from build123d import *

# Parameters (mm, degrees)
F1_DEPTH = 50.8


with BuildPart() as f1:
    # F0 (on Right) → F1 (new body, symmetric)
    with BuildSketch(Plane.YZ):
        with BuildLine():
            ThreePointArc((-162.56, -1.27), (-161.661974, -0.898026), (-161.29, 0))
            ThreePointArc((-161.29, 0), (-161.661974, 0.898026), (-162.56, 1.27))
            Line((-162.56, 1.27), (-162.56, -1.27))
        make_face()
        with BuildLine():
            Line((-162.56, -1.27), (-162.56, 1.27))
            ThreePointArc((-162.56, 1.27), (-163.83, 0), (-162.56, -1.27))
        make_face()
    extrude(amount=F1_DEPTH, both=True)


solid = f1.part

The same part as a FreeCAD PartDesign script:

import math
import FreeCAD as App
import Part
import Sketcher
from FreeCAD import Vector
Q = App.Units.Quantity

doc = App.newDocument("Part")
params = doc.addObject("Spreadsheet::Sheet", "Params")
for row, (alias, value) in enumerate([
    ("sketch1_radius", "0.0499999 in"),
    ("pad1_length", "4 in"),
], start=1):
    params.set(f"A{row}", alias)
    params.set(f"B{row}", "=" + value)
    params.setAlias(f"B{row}", alias)

body = doc.addObject("PartDesign::Body", "Body")

# Sketch on YZ plane
sketch1 = body.newObject("Sketcher::SketchObject", "Sketch")
sketch1.AttachmentSupport = (doc.getObject("YZ_Plane"), [""])
sketch1.MapMode = "FlatFace"
sketch1.addGeometry(Part.ArcOfCircle(Part.Circle(Vector(-162.6, 0, 0), Vector(0, 0, 1), 1.3), math.radians(-90), math.radians(0)), False)
sketch1.addGeometry(Part.ArcOfCircle(Part.Circle(Vector(-162.6, 0, 0), Vector(0, 0, 1), 1.3), math.radians(0), math.radians(90)), False)
sketch1.addGeometry(Part.ArcOfCircle(Part.Circle(Vector(-162.6, 0, 0), Vector(0, 0, 1), 1.3), math.radians(90), math.radians(270)), False)
sketch1.addConstraint(Sketcher.Constraint("Coincident", 0, 2, 1, 1))
sketch1.addConstraint(Sketcher.Constraint("Tangent", 1, 2, 2, 1))
sketch1.addConstraint(Sketcher.Constraint("Tangent", 2, 2, 0, 1))
sketch1.addConstraint(Sketcher.Constraint("Equal", 1, 2))
sketch1.addConstraint(Sketcher.Constraint("Symmetric", 1, 2, 2, 2, -1))
sketch1.addConstraint(Sketcher.Constraint("PointOnObject", 0, 2, -1))
sketch1.addConstraint(Sketcher.Constraint("Vertical", 2, 3, 1, 2))
sketch1.addConstraint(Sketcher.Constraint("Radius", 0, Q("0.0499999 in")))
sketch1.addConstraint(Sketcher.Constraint("DistanceX", 0, 3, -1, 1, Q("6.3999999 in")))
sketch1.setExpression("Constraints[7]", "Params.sketch1_radius")
pad1 = body.newObject("PartDesign::Pad", "Pad")
pad1.Profile = sketch1
pad1.setExpression("Length", "Params.pad1_length")
pad1.Midplane = True

doc.recompute()
